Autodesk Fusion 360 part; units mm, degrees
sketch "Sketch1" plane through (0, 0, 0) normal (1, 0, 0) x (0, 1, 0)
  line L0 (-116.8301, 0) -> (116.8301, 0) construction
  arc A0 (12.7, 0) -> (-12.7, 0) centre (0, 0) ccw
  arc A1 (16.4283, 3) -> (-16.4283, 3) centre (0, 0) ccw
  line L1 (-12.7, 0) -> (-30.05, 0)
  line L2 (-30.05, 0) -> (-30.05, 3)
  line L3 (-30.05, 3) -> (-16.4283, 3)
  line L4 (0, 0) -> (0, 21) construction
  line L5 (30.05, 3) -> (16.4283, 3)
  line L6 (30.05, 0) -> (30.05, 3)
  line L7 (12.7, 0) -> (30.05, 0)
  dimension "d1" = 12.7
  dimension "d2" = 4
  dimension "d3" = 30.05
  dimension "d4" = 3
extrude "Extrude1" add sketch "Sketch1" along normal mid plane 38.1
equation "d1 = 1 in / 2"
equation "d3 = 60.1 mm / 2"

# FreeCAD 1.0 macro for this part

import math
import FreeCAD as App
import Part
import Sketcher
from FreeCAD import Vector
Q = App.Units.Quantity

doc = App.newDocument("Part")
body = doc.addObject("PartDesign::Body", "Body")

# Sketch on YZ plane
sketch1 = body.newObject("Sketcher::SketchObject", "Sketch")
sketch1.AttachmentSupport = (doc.getObject("YZ_Plane"), [""])
sketch1.MapMode = "FlatFace"
sketch1.addGeometry(Part.ArcOfCircle(Part.Circle(Vector(0, 0, 0), Vector(0, 0, 1), 12.7), math.radians(0), math.radians(180)), False)
sketch1.addGeometry(Part.LineSegment(Vector(12.7, 0, 0), Vector(30.05, 0, 0)), False)
sketch1.addGeometry(Part.LineSegment(Vector(30.05, 0, 0), Vector(30.05, 3, 0)), False)
sketch1.addGeometry(Part.LineSegment(Vector(30.05, 3, 0), Vector(16.4283, 3, 0)), False)
sketch1.addGeometry(Part.ArcOfCircle(Part.Circle(Vector(0, 0, 0), Vector(0, 0, 1), 16.699971), math.radians(10.348851), math.radians(169.651149)), False)
sketch1.addGeometry(Part.LineSegment(Vector(-16.4283, 3, 0), Vector(-30.05, 3, 0)), False)
sketch1.addGeometry(Part.LineSegment(Vector(-30.05, 3, 0), Vector(-30.05, 0, 0)), False)
sketch1.addGeometry(Part.LineSegment(Vector(-30.05, 0, 0), Vector(-12.7, 0, 0)), False)
sketch1.addConstraint(Sketcher.Constraint("Coincident", 0, 1, 1, 1))
sketch1.addConstraint(Sketcher.Constraint("Coincident", 1, 2, 2, 1))
sketch1.addConstraint(Sketcher.Constraint("Coincident", 2, 2, 3, 1))
sketch1.addConstraint(Sketcher.Constraint("Coincident", 3, 2, 4, 1))
sketch1.addConstraint(Sketcher.Constraint("Coincident", 4, 2, 5, 1))
sketch1.addConstraint(Sketcher.Constraint("Coincident", 5, 2, 6, 1))
sketch1.addConstraint(Sketcher.Constraint("Coincident", 6, 2, 7, 1))
sketch1.addConstraint(Sketcher.Constraint("Coincident", 7, 2, 0, 2))
sketch1.addConstraint(Sketcher.Constraint("Horizontal", 1))
sketch1.addConstraint(Sketcher.Constraint("Vertical", 2))
sketch1.addConstraint(Sketcher.Constraint("Horizontal", 3))
sketch1.addConstraint(Sketcher.Constraint("Horizontal", 5))
sketch1.addConstraint(Sketcher.Constraint("Vertical", 6))
sketch1.addConstraint(Sketcher.Constraint("Horizontal", 7))
sketch1.addConstraint(Sketcher.Constraint("Coincident", 0, 3, -1, 1))
sketch1.addConstraint(Sketcher.Constraint("Coincident", 4, 3, -1, 1))
sketch1.addConstraint(Sketcher.Constraint("Symmetric", 1, 2, 6, 2, -1, 1))
sketch1.addConstraint(Sketcher.Constraint("PointOnObject", 0, 1, -1))
sketch1.addConstraint(Sketcher.Constraint("Horizontal", 3, 2, 4, 2))
sketch1.addConstraint(Sketcher.Constraint("Radius", 0, Q("0.5 in")))
sketch1.addConstraint(Sketcher.Constraint("DistanceY", 2, 1, 2, 2, Q("0.1181 in")))
sketch1.addConstraint(Sketcher.Constraint("DistanceX", -1, 1, 1, 2, Q("30.05 mm")))
sketch1.addConstraint(Sketcher.Constraint("Radius", 4, Q("16.7 mm")))
pad1 = body.newObject("PartDesign::Pad", "Pad")
pad1.Profile = sketch1
pad1.Length = Q("1.5 in")
pad1.Midplane = True

doc.recompute()
